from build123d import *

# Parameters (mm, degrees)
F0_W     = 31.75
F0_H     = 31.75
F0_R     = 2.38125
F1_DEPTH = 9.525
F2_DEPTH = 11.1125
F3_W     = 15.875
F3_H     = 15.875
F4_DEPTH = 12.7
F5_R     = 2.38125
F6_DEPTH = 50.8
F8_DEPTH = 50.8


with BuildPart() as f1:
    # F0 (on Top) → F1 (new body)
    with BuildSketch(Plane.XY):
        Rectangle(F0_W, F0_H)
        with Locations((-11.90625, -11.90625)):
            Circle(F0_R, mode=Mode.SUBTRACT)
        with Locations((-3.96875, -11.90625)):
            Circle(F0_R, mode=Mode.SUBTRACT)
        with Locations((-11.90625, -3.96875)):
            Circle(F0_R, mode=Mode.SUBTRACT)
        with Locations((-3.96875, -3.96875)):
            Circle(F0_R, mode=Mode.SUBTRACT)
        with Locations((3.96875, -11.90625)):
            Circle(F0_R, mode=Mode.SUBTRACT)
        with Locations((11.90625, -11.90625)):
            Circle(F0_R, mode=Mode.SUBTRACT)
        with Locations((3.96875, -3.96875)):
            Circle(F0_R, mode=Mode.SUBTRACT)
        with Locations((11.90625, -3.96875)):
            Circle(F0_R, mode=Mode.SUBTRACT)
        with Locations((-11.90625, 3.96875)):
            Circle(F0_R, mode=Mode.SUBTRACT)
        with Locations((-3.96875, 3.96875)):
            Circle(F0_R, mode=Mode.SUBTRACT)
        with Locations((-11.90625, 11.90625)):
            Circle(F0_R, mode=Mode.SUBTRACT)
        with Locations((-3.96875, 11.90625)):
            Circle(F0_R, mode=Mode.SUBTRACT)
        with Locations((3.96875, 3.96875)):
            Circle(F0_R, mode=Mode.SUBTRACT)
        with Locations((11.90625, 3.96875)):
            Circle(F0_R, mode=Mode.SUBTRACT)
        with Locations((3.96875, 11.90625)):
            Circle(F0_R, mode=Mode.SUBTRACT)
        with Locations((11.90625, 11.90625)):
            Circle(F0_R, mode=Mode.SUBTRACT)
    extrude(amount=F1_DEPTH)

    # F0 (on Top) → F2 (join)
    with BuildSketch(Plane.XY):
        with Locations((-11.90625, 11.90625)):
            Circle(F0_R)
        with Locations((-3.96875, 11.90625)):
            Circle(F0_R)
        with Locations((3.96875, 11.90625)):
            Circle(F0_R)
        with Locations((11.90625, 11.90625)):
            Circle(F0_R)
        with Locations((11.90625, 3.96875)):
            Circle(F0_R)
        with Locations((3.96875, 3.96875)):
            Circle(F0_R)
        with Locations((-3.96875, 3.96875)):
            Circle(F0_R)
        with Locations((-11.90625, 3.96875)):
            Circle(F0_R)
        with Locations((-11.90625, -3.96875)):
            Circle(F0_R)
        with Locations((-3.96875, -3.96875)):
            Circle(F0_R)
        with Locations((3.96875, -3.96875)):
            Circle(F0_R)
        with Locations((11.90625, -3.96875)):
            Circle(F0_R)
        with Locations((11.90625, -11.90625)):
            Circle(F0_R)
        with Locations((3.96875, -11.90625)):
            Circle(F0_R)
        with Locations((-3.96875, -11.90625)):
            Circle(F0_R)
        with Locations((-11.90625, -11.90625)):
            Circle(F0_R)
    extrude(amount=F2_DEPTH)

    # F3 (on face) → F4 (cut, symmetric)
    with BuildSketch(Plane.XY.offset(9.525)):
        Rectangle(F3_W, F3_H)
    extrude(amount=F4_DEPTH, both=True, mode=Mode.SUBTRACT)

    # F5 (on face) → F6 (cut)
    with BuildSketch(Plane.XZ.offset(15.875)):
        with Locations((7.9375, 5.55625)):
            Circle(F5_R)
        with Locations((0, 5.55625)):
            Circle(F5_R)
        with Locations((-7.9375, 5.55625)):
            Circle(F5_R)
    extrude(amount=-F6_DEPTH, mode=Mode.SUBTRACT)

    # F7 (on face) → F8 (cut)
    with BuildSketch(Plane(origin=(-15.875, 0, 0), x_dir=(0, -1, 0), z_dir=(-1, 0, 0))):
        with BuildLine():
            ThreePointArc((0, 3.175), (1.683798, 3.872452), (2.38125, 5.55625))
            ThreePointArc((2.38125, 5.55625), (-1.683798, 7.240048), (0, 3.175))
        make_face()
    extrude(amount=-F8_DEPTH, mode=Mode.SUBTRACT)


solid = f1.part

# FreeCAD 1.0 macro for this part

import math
import FreeCAD as App
import Part
import Sketcher
from FreeCAD import Vector
Q = App.Units.Quantity

doc = App.newDocument("Part")
params = doc.addObject("Spreadsheet::Sheet", "Params")
for row, (alias, value) in enumerate([
    ("sketch1_diameter", "0.1875 in"),
    ("sketch1_width", "1.25 in"),
    ("pad1_length", "0.375 in"),
    ("sketch2_diameter", "0.1875 in"),
    ("pad2_length", "0.4375 in"),
    ("sketch3_width", "0.625 in"),
    ("pocket1_length", "1 in"),
    ("sketch4_diameter", "0.1875 in"),
    ("pocket2_length", "2 in"),
    ("sketch5_radius", "0.09375 in"),
    ("pocket3_length", "2 in"),
], start=1):
    params.set(f"A{row}", alias)
    params.set(f"B{row}", "=" + value)
    params.setAlias(f"B{row}", alias)

body = doc.addObject("PartDesign::Body", "Body")

sketch1 = doc.addObject("Sketcher::SketchObject", "Sketch")
body.addObject(sketch1)
sketch1.AttachmentSupport = (doc.XY_Plane, [""])
sketch1.MapMode = "FlatFace"
sketch1.addGeometry([
    Part.LineSegment(Vector(-15.875, 15.875, 0), Vector(-15.875, -15.875, 0)),
    Part.LineSegment(Vector(-15.875, -15.875, 0), Vector(15.875, -15.875, 0)),
    Part.LineSegment(Vector(15.875, -15.875, 0), Vector(15.875, 15.875, 0)),
    Part.LineSegment(Vector(15.875, 15.875, 0), Vector(-15.875, 15.875, 0)),
    Part.Circle(Vector(-11.90625, -11.90625, 0), Vector(0, 0, 1), 2.38125),
    Part.Circle(Vector(-3.96875, -11.90625, 0), Vector(0, 0, 1), 2.38125),
    Part.Circle(Vector(-11.90625, -3.96875, 0), Vector(0, 0, 1), 2.38125),
    Part.Circle(Vector(-3.96875, -3.96875, 0), Vector(0, 0, 1), 2.38125),
    Part.Circle(Vector(3.96875, -11.90625, 0), Vector(0, 0, 1), 2.38125),
    Part.Circle(Vector(11.90625, -11.90625, 0), Vector(0, 0, 1), 2.38125),
    Part.Circle(Vector(3.96875, -3.96875, 0), Vector(0, 0, 1), 2.38125),
    Part.Circle(Vector(11.90625, -3.96875, 0), Vector(0, 0, 1), 2.38125),
    Part.Circle(Vector(-11.90625, 3.96875, 0), Vector(0, 0, 1), 2.38125),
    Part.Circle(Vector(-3.96875, 3.96875, 0), Vector(0, 0, 1), 2.38125),
    Part.Circle(Vector(-11.90625, 11.90625, 0), Vector(0, 0, 1), 2.38125),
    Part.Circle(Vector(-3.96875, 11.90625, 0), Vector(0, 0, 1), 2.38125),
    Part.Circle(Vector(3.96875, 3.96875, 0), Vector(0, 0, 1), 2.38125),
    Part.Circle(Vector(11.90625, 3.96875, 0), Vector(0, 0, 1), 2.38125),
    Part.Circle(Vector(3.96875, 11.90625, 0), Vector(0, 0, 1), 2.38125),
    Part.Circle(Vector(11.90625, 11.90625, 0), Vector(0, 0, 1), 2.38125),
], False)
sketch1.addConstraint([
    Sketcher.Constraint("Coincident", 0, 2, 1, 1),
    Sketcher.Constraint("Coincident", 1, 2, 2, 1),
    Sketcher.Constraint("Coincident", 2, 2, 3, 1),
    Sketcher.Constraint("Coincident", 3, 2, 0, 1),
    Sketcher.Constraint("Vertical", 0),
    Sketcher.Constraint("Horizontal", 1),
    Sketcher.Constraint("Vertical", 2),
    Sketcher.Constraint("Horizontal", 3),
    Sketcher.Constraint("Equal", 4, 5),
    Sketcher.Constraint("Equal", 5, 6),
    Sketcher.Constraint("Equal", 6, 7),
    Sketcher.Constraint("Equal", 7, 8),
    Sketcher.Constraint("Equal", 8, 9),
    Sketcher.Constraint("Equal", 9, 10),
    Sketcher.Constraint("Equal", 10, 11),
    Sketcher.Constraint("Equal", 11, 12),
    Sketcher.Constraint("Equal", 12, 13),
    Sketcher.Constraint("Equal", 13, 14),
    Sketcher.Constraint("Equal", 14, 15),
    Sketcher.Constraint("Equal", 15, 16),
    Sketcher.Constraint("Equal", 16, 17),
    Sketcher.Constraint("Equal", 17, 18),
    Sketcher.Constraint("Equal", 18, 19),
    Sketcher.Constraint("Symmetric", 11, 3, 12, 3, -1, 1),
    Sketcher.Constraint("Symmetric", 10, 3, 13, 3, -1, 1),
    Sketcher.Constraint("Symmetric", 9, 3, 14, 3, -1, 1),
    Sketcher.Constraint("Symmetric", 8, 3, 15, 3, -1, 1),
    Sketcher.Constraint("Symmetric", 7, 3, 16, 3, -1, 1),
    Sketcher.Constraint("Symmetric", 6, 3, 17, 3, -1, 1),
    Sketcher.Constraint("Symmetric", 5, 3, 18, 3, -1, 1),
    Sketcher.Constraint("Symmetric", 4, 3, 19, 3, -1, 1),
    Sketcher.Constraint("Symmetric", 0, 2, 2, 2, -1, 1),
    Sketcher.Constraint("Symmetric", 5, 3, 8, 3, -2),
    Sketcher.Constraint("Symmetric", 4, 3, 9, 3, -2),
    Sketcher.Constraint("Symmetric", 7, 3, 10, 3, -2),
    Sketcher.Constraint("Symmetric", 6, 3, 11, 3, -2),
    Sketcher.Constraint("Horizontal", 4, 3, 5, 3),
    Sketcher.Constraint("Horizontal", 6, 3, 7, 3),
    Sketcher.Constraint("Vertical", 4, 3, 6, 3),
    Sketcher.Constraint("Vertical", 5, 3, 7, 3),
    Sketcher.Constraint("Equal", 3, 0),
    Sketcher.Constraint("Diameter", 4, Q("0.1875 in")),
    Sketcher.Constraint("DistanceX", 1, 1, 1, 2, Q("1.25 in")),
    Sketcher.Constraint("DistanceX", 4, 3, -1, 1, Q("0.46875 in")),
    Sketcher.Constraint("DistanceY", 4, 3, -1, 1, Q("0.46875 in")),
    Sketcher.Constraint("DistanceX", 5, 3, -1, 1, Q("0.15625 in")),
    Sketcher.Constraint("DistanceY", 6, 3, -1, 1, Q("0.15625 in")),
])
sketch1.setExpression("Constraints[41]", "Params.sketch1_diameter")
sketch1.setExpression("Constraints[42]", "Params.sketch1_width")
pad1 = doc.addObject("PartDesign::Pad", "Pad")
body.addObject(pad1)
pad1.Profile = sketch1
pad1.setExpression("Length", "Params.pad1_length")

sketch2 = doc.addObject("Sketcher::SketchObject", "Sketch001")
body.addObject(sketch2)
sketch2.AttachmentSupport = (doc.XY_Plane, [""])
sketch2.MapMode = "FlatFace"
sketch2.addGeometry([
    Part.Circle(Vector(-11.90625, 11.90625, 0), Vector(0, 0, 1), 2.38125),
    Part.Circle(Vector(-3.96875, 11.90625, 0), Vector(0, 0, 1), 2.38125),
    Part.Circle(Vector(3.96875, 11.90625, 0), Vector(0, 0, 1), 2.38125),
    Part.Circle(Vector(11.90625, 11.90625, 0), Vector(0, 0, 1), 2.38125),
    Part.Circle(Vector(11.90625, 3.96875, 0), Vector(0, 0, 1), 2.38125),
    Part.Circle(Vector(3.96875, 3.96875, 0), Vector(0, 0, 1), 2.38125),
    Part.Circle(Vector(-3.96875, 3.96875, 0), Vector(0, 0, 1), 2.38125),
    Part.Circle(Vector(-11.90625, 3.96875, 0), Vector(0, 0, 1), 2.38125),
    Part.Circle(Vector(-11.90625, -3.96875, 0), Vector(0, 0, 1), 2.38125),
    Part.Circle(Vector(-3.96875, -3.96875, 0), Vector(0, 0, 1), 2.38125),
    Part.Circle(Vector(3.96875, -3.96875, 0), Vector(0, 0, 1), 2.38125),
    Part.Circle(Vector(11.90625, -3.96875, 0), Vector(0, 0, 1), 2.38125),
    Part.Circle(Vector(11.90625, -11.90625, 0), Vector(0, 0, 1), 2.38125),
    Part.Circle(Vector(3.96875, -11.90625, 0), Vector(0, 0, 1), 2.38125),
    Part.Circle(Vector(-3.96875, -11.90625, 0), Vector(0, 0, 1), 2.38125),
    Part.Circle(Vector(-11.90625, -11.90625, 0), Vector(0, 0, 1), 2.38125),
], False)
sketch2.addConstraint([
    Sketcher.Constraint("Equal", 0, 1),
    Sketcher.Constraint("Equal", 1, 2),
    Sketcher.Constraint("Equal", 2, 3),
    Sketcher.Constraint("Equal", 3, 4),
    Sketcher.Constraint("Equal", 4, 5),
    Sketcher.Constraint("Equal", 5, 6),
    Sketcher.Constraint("Equal", 6, 7),
    Sketcher.Constraint("Equal", 7, 8),
    Sketcher.Constraint("Equal", 8, 9),
    Sketcher.Constraint("Equal", 9, 10),
    Sketcher.Constraint("Equal", 10, 11),
    Sketcher.Constraint("Equal", 11, 12),
    Sketcher.Constraint("Equal", 12, 13),
    Sketcher.Constraint("Equal", 13, 14),
    Sketcher.Constraint("Equal", 14, 15),
    Sketcher.Constraint("Symmetric", 4, 3, 8, 3, -1, 1),
    Sketcher.Constraint("Symmetric", 5, 3, 9, 3, -1, 1),
    Sketcher.Constraint("Symmetric", 6, 3, 10, 3, -1, 1),
    Sketcher.Constraint("Symmetric", 7, 3, 11, 3, -1, 1),
    Sketcher.Constraint("Symmetric", 0, 3, 12, 3, -1, 1),
    Sketcher.Constraint("Symmetric", 1, 3, 13, 3, -1, 1),
    Sketcher.Constraint("Symmetric", 2, 3, 14, 3, -1, 1),
    Sketcher.Constraint("Symmetric", 3, 3, 15, 3, -1, 1),
    Sketcher.Constraint("Symmetric", 1, 3, 2, 3, -2),
    Sketcher.Constraint("Symmetric", 0, 3, 3, 3, -2),
    Sketcher.Constraint("Symmetric", 5, 3, 6, 3, -2),
    Sketcher.Constraint("Symmetric", 4, 3, 7, 3, -2),
    Sketcher.Constraint("Horizontal", 0, 3, 1, 3),
    Sketcher.Constraint("Horizontal", 4, 3, 5, 3),
    Sketcher.Constraint("Vertical", 3, 3, 4, 3),
    Sketcher.Constraint("Vertical", 2, 3, 5, 3),
    Sketcher.Constraint("Diameter", 0, Q("0.1875 in")),
    Sketcher.Constraint("DistanceX", 0, 3, -1, 1, Q("0.46875 in")),
    Sketcher.Constraint("DistanceY", -1, 1, 0, 3, Q("0.46875 in")),
    Sketcher.Constraint("DistanceX", 1, 3, -1, 1, Q("0.15625 in")),
    Sketcher.Constraint("DistanceY", -1, 1, 4, 3, Q("0.15625 in")),
])
sketch2.setExpression("Constraints[31]", "Params.sketch2_diameter")
pad2 = doc.addObject("PartDesign::Pad", "Pad001")
body.addObject(pad2)
pad2.Profile = sketch2
pad2.setExpression("Length", "Params.pad2_length")

sketch3 = doc.addObject("Sketcher::SketchObject", "Sketch002")
body.addObject(sketch3)
sketch3.AttachmentSupport = (doc.XY_Plane, [""])
sketch3.MapMode = "FlatFace"
sketch3.AttachmentOffset = App.Placement(Vector(0, 0, 0.375 * 25.4), App.Rotation())
sketch3.addGeometry([
    Part.LineSegment(Vector(-7.9375, 7.9375, 0), Vector(-7.9375, -7.9375, 0)),
    Part.LineSegment(Vector(-7.9375, -7.9375, 0), Vector(7.9375, -7.9375, 0)),
    Part.LineSegment(Vector(7.9375, -7.9375, 0), Vector(7.9375, 7.9375, 0)),
    Part.LineSegment(Vector(7.9375, 7.9375, 0), Vector(-7.9375, 7.9375, 0)),
], False)
sketch3.addConstraint([
    Sketcher.Constraint("Coincident", 0, 2, 1, 1),
    Sketcher.Constraint("Coincident", 1, 2, 2, 1),
    Sketcher.Constraint("Coincident", 2, 2, 3, 1),
    Sketcher.Constraint("Coincident", 3, 2, 0, 1),
    Sketcher.Constraint("Vertical", 0),
    Sketcher.Constraint("Horizontal", 1),
    Sketcher.Constraint("Vertical", 2),
    Sketcher.Constraint("Horizontal", 3),
    Sketcher.Constraint("Symmetric", 0, 2, 2, 2, -1, 1),
    Sketcher.Constraint("Equal", 3, 0),
    Sketcher.Constraint("DistanceX", 1, 1, 1, 2, Q("0.625 in")),
])
sketch3.setExpression("Constraints[10]", "Params.sketch3_width")
pocket1 = doc.addObject("PartDesign::Pocket", "Pocket")
body.addObject(pocket1)
pocket1.Profile = sketch3
pocket1.setExpression("Length", "Params.pocket1_length")
pocket1.Midplane = True

sketch4 = doc.addObject("Sketcher::SketchObject", "Sketch003")
body.addObject(sketch4)
sketch4.AttachmentSupport = (doc.XZ_Plane, [""])
sketch4.MapMode = "FlatFace"
sketch4.AttachmentOffset = App.Placement(Vector(0, 0, 0.625 * 25.4), App.Rotation())
sketch4.addGeometry([
    Part.Circle(Vector(7.9375, 5.55625, 0), Vector(0, 0, 1), 2.38125),
    Part.Circle(Vector(0, 5.55625, 0), Vector(0, 0, 1), 2.38125),
    Part.Circle(Vector(-7.9375, 5.55625, 0), Vector(0, 0, 1), 2.38125),
], False)
sketch4.addConstraint([
    Sketcher.Constraint("Equal", 0, 1),
    Sketcher.Constraint("Equal", 1, 2),
    Sketcher.Constraint("Symmetric", 0, 3, 2, 3, -2),
    Sketcher.Constraint("PointOnObject", 1, 3, -2),
    Sketcher.Constraint("Horizontal", 0, 3, 1, 3),
    Sketcher.Constraint("Diameter", 0, Q("0.1875 in")),
    Sketcher.Constraint("DistanceX", -1, 1, 0, 3, Q("0.3125 in")),
    Sketcher.Constraint("DistanceY", -1, 1, 0, 3, Q("0.21875 in")),
])
sketch4.setExpression("Constraints[5]", "Params.sketch4_diameter")
pocket2 = doc.addObject("PartDesign::Pocket", "Pocket001")
body.addObject(pocket2)
pocket2.Profile = sketch4
pocket2.setExpression("Length", "Params.pocket2_length")

sketch5 = doc.addObject("Sketcher::SketchObject", "Sketch004")
body.addObject(sketch5)
sketch5.AttachmentSupport = (doc.YZ_Plane, [""])
sketch5.MapMode = "FlatFace"
sketch5.AttachmentOffset = App.Placement(Vector(0, 0, -0.625 * 25.4), App.Rotation())
sketch5.addGeometry([
    Part.ArcOfCircle(Part.Circle(Vector(0, 5.55625, 0), Vector(0, 0, 1), 2.38125), math.radians(-179.999998), math.radians(-90.000002)),
    Part.ArcOfCircle(Part.Circle(Vector(0, 5.55625, 0), Vector(0, 0, 1), 2.38125), math.radians(-90), math.radians(180)),
], False)
sketch5.addConstraint([
    Sketcher.Constraint("Tangent", 0, 1, 1, 2),
    Sketcher.Constraint("Coincident", 1, 1, 0, 2),
    Sketcher.Constraint("PointOnObject", 0, 3, -2),
    Sketcher.Constraint("PointOnObject", 1, 1, -2),
    Sketcher.Constraint("Horizontal", 1, 3, 0, 1),
    Sketcher.Constraint("Radius", 0, Q("0.09375 in")),
    Sketcher.Constraint("DistanceY", -1, 1, 0, 3, Q("0.21875 in")),
])
sketch5.setExpression("Constraints[5]", "Params.sketch5_radius")
pocket3 = doc.addObject("PartDesign::Pocket", "Pocket002")
body.addObject(pocket3)
pocket3.Profile = sketch5
pocket3.setExpression("Length", "Params.pocket3_length")
pocket3.Reversed = True

doc.recompute()
